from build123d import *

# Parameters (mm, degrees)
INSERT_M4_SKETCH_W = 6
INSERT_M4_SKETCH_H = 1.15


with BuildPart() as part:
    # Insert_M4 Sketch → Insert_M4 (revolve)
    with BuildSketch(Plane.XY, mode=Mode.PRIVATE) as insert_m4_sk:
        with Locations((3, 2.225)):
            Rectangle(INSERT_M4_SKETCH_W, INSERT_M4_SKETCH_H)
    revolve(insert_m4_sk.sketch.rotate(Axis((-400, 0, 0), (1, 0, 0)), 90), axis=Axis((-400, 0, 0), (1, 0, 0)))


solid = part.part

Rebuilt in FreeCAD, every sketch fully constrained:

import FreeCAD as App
import Part
import Sketcher

V = App.Vector


def add_polygon(sketch, points):
    """Adds a closed chain of lines whose ends are joined by coincident constraints."""
    first, n = sketch.GeometryCount, len(points)
    for a, b in zip(points, points[1:] + points[:1]):
        sketch.addGeometry(Part.LineSegment(App.Vector(*a, 0), App.Vector(*b, 0)), False)
    for i in range(n):
        sketch.addConstraint(Sketcher.Constraint("Coincident", first + i, 2, first + (i + 1) % n, 1))

doc = App.newDocument("Part")
body = doc.addObject("PartDesign::Body", "Body")

# Sketch on XY plane
sketch1 = body.newObject("Sketcher::SketchObject", "Sketch")
sketch1.AttachmentSupport = (doc.getObject("XY_Plane"), [""])
sketch1.MapMode = "FlatFace"
add_polygon(sketch1, [(0, 2.8), (0, 1.6), (6, 1.6), (6, 2.8)])  # lines 0-3
sketch1.addConstraint([
    Sketcher.Constraint("Vertical", 0),
    Sketcher.Constraint("Horizontal", 1),
    Sketcher.Constraint("Vertical", 2),
    Sketcher.Constraint("Horizontal", 3),
    Sketcher.Constraint("PointOnObject", 0, 2, -2),
    Sketcher.Constraint("DistanceX", 1, 1, 1, 2, 6.0),
    Sketcher.Constraint("DistanceY", 0, 2, 0, 1, 1.15),
    Sketcher.Constraint("DistanceY", -1, 1, 2, 2, 2.8),
])
revolution = body.newObject("PartDesign::Revolution", "Revolution")
revolution.Profile = sketch1
revolution.ReferenceAxis = (sketch1, ["H_Axis"])
revolution.Angle = 360

doc.recompute()
